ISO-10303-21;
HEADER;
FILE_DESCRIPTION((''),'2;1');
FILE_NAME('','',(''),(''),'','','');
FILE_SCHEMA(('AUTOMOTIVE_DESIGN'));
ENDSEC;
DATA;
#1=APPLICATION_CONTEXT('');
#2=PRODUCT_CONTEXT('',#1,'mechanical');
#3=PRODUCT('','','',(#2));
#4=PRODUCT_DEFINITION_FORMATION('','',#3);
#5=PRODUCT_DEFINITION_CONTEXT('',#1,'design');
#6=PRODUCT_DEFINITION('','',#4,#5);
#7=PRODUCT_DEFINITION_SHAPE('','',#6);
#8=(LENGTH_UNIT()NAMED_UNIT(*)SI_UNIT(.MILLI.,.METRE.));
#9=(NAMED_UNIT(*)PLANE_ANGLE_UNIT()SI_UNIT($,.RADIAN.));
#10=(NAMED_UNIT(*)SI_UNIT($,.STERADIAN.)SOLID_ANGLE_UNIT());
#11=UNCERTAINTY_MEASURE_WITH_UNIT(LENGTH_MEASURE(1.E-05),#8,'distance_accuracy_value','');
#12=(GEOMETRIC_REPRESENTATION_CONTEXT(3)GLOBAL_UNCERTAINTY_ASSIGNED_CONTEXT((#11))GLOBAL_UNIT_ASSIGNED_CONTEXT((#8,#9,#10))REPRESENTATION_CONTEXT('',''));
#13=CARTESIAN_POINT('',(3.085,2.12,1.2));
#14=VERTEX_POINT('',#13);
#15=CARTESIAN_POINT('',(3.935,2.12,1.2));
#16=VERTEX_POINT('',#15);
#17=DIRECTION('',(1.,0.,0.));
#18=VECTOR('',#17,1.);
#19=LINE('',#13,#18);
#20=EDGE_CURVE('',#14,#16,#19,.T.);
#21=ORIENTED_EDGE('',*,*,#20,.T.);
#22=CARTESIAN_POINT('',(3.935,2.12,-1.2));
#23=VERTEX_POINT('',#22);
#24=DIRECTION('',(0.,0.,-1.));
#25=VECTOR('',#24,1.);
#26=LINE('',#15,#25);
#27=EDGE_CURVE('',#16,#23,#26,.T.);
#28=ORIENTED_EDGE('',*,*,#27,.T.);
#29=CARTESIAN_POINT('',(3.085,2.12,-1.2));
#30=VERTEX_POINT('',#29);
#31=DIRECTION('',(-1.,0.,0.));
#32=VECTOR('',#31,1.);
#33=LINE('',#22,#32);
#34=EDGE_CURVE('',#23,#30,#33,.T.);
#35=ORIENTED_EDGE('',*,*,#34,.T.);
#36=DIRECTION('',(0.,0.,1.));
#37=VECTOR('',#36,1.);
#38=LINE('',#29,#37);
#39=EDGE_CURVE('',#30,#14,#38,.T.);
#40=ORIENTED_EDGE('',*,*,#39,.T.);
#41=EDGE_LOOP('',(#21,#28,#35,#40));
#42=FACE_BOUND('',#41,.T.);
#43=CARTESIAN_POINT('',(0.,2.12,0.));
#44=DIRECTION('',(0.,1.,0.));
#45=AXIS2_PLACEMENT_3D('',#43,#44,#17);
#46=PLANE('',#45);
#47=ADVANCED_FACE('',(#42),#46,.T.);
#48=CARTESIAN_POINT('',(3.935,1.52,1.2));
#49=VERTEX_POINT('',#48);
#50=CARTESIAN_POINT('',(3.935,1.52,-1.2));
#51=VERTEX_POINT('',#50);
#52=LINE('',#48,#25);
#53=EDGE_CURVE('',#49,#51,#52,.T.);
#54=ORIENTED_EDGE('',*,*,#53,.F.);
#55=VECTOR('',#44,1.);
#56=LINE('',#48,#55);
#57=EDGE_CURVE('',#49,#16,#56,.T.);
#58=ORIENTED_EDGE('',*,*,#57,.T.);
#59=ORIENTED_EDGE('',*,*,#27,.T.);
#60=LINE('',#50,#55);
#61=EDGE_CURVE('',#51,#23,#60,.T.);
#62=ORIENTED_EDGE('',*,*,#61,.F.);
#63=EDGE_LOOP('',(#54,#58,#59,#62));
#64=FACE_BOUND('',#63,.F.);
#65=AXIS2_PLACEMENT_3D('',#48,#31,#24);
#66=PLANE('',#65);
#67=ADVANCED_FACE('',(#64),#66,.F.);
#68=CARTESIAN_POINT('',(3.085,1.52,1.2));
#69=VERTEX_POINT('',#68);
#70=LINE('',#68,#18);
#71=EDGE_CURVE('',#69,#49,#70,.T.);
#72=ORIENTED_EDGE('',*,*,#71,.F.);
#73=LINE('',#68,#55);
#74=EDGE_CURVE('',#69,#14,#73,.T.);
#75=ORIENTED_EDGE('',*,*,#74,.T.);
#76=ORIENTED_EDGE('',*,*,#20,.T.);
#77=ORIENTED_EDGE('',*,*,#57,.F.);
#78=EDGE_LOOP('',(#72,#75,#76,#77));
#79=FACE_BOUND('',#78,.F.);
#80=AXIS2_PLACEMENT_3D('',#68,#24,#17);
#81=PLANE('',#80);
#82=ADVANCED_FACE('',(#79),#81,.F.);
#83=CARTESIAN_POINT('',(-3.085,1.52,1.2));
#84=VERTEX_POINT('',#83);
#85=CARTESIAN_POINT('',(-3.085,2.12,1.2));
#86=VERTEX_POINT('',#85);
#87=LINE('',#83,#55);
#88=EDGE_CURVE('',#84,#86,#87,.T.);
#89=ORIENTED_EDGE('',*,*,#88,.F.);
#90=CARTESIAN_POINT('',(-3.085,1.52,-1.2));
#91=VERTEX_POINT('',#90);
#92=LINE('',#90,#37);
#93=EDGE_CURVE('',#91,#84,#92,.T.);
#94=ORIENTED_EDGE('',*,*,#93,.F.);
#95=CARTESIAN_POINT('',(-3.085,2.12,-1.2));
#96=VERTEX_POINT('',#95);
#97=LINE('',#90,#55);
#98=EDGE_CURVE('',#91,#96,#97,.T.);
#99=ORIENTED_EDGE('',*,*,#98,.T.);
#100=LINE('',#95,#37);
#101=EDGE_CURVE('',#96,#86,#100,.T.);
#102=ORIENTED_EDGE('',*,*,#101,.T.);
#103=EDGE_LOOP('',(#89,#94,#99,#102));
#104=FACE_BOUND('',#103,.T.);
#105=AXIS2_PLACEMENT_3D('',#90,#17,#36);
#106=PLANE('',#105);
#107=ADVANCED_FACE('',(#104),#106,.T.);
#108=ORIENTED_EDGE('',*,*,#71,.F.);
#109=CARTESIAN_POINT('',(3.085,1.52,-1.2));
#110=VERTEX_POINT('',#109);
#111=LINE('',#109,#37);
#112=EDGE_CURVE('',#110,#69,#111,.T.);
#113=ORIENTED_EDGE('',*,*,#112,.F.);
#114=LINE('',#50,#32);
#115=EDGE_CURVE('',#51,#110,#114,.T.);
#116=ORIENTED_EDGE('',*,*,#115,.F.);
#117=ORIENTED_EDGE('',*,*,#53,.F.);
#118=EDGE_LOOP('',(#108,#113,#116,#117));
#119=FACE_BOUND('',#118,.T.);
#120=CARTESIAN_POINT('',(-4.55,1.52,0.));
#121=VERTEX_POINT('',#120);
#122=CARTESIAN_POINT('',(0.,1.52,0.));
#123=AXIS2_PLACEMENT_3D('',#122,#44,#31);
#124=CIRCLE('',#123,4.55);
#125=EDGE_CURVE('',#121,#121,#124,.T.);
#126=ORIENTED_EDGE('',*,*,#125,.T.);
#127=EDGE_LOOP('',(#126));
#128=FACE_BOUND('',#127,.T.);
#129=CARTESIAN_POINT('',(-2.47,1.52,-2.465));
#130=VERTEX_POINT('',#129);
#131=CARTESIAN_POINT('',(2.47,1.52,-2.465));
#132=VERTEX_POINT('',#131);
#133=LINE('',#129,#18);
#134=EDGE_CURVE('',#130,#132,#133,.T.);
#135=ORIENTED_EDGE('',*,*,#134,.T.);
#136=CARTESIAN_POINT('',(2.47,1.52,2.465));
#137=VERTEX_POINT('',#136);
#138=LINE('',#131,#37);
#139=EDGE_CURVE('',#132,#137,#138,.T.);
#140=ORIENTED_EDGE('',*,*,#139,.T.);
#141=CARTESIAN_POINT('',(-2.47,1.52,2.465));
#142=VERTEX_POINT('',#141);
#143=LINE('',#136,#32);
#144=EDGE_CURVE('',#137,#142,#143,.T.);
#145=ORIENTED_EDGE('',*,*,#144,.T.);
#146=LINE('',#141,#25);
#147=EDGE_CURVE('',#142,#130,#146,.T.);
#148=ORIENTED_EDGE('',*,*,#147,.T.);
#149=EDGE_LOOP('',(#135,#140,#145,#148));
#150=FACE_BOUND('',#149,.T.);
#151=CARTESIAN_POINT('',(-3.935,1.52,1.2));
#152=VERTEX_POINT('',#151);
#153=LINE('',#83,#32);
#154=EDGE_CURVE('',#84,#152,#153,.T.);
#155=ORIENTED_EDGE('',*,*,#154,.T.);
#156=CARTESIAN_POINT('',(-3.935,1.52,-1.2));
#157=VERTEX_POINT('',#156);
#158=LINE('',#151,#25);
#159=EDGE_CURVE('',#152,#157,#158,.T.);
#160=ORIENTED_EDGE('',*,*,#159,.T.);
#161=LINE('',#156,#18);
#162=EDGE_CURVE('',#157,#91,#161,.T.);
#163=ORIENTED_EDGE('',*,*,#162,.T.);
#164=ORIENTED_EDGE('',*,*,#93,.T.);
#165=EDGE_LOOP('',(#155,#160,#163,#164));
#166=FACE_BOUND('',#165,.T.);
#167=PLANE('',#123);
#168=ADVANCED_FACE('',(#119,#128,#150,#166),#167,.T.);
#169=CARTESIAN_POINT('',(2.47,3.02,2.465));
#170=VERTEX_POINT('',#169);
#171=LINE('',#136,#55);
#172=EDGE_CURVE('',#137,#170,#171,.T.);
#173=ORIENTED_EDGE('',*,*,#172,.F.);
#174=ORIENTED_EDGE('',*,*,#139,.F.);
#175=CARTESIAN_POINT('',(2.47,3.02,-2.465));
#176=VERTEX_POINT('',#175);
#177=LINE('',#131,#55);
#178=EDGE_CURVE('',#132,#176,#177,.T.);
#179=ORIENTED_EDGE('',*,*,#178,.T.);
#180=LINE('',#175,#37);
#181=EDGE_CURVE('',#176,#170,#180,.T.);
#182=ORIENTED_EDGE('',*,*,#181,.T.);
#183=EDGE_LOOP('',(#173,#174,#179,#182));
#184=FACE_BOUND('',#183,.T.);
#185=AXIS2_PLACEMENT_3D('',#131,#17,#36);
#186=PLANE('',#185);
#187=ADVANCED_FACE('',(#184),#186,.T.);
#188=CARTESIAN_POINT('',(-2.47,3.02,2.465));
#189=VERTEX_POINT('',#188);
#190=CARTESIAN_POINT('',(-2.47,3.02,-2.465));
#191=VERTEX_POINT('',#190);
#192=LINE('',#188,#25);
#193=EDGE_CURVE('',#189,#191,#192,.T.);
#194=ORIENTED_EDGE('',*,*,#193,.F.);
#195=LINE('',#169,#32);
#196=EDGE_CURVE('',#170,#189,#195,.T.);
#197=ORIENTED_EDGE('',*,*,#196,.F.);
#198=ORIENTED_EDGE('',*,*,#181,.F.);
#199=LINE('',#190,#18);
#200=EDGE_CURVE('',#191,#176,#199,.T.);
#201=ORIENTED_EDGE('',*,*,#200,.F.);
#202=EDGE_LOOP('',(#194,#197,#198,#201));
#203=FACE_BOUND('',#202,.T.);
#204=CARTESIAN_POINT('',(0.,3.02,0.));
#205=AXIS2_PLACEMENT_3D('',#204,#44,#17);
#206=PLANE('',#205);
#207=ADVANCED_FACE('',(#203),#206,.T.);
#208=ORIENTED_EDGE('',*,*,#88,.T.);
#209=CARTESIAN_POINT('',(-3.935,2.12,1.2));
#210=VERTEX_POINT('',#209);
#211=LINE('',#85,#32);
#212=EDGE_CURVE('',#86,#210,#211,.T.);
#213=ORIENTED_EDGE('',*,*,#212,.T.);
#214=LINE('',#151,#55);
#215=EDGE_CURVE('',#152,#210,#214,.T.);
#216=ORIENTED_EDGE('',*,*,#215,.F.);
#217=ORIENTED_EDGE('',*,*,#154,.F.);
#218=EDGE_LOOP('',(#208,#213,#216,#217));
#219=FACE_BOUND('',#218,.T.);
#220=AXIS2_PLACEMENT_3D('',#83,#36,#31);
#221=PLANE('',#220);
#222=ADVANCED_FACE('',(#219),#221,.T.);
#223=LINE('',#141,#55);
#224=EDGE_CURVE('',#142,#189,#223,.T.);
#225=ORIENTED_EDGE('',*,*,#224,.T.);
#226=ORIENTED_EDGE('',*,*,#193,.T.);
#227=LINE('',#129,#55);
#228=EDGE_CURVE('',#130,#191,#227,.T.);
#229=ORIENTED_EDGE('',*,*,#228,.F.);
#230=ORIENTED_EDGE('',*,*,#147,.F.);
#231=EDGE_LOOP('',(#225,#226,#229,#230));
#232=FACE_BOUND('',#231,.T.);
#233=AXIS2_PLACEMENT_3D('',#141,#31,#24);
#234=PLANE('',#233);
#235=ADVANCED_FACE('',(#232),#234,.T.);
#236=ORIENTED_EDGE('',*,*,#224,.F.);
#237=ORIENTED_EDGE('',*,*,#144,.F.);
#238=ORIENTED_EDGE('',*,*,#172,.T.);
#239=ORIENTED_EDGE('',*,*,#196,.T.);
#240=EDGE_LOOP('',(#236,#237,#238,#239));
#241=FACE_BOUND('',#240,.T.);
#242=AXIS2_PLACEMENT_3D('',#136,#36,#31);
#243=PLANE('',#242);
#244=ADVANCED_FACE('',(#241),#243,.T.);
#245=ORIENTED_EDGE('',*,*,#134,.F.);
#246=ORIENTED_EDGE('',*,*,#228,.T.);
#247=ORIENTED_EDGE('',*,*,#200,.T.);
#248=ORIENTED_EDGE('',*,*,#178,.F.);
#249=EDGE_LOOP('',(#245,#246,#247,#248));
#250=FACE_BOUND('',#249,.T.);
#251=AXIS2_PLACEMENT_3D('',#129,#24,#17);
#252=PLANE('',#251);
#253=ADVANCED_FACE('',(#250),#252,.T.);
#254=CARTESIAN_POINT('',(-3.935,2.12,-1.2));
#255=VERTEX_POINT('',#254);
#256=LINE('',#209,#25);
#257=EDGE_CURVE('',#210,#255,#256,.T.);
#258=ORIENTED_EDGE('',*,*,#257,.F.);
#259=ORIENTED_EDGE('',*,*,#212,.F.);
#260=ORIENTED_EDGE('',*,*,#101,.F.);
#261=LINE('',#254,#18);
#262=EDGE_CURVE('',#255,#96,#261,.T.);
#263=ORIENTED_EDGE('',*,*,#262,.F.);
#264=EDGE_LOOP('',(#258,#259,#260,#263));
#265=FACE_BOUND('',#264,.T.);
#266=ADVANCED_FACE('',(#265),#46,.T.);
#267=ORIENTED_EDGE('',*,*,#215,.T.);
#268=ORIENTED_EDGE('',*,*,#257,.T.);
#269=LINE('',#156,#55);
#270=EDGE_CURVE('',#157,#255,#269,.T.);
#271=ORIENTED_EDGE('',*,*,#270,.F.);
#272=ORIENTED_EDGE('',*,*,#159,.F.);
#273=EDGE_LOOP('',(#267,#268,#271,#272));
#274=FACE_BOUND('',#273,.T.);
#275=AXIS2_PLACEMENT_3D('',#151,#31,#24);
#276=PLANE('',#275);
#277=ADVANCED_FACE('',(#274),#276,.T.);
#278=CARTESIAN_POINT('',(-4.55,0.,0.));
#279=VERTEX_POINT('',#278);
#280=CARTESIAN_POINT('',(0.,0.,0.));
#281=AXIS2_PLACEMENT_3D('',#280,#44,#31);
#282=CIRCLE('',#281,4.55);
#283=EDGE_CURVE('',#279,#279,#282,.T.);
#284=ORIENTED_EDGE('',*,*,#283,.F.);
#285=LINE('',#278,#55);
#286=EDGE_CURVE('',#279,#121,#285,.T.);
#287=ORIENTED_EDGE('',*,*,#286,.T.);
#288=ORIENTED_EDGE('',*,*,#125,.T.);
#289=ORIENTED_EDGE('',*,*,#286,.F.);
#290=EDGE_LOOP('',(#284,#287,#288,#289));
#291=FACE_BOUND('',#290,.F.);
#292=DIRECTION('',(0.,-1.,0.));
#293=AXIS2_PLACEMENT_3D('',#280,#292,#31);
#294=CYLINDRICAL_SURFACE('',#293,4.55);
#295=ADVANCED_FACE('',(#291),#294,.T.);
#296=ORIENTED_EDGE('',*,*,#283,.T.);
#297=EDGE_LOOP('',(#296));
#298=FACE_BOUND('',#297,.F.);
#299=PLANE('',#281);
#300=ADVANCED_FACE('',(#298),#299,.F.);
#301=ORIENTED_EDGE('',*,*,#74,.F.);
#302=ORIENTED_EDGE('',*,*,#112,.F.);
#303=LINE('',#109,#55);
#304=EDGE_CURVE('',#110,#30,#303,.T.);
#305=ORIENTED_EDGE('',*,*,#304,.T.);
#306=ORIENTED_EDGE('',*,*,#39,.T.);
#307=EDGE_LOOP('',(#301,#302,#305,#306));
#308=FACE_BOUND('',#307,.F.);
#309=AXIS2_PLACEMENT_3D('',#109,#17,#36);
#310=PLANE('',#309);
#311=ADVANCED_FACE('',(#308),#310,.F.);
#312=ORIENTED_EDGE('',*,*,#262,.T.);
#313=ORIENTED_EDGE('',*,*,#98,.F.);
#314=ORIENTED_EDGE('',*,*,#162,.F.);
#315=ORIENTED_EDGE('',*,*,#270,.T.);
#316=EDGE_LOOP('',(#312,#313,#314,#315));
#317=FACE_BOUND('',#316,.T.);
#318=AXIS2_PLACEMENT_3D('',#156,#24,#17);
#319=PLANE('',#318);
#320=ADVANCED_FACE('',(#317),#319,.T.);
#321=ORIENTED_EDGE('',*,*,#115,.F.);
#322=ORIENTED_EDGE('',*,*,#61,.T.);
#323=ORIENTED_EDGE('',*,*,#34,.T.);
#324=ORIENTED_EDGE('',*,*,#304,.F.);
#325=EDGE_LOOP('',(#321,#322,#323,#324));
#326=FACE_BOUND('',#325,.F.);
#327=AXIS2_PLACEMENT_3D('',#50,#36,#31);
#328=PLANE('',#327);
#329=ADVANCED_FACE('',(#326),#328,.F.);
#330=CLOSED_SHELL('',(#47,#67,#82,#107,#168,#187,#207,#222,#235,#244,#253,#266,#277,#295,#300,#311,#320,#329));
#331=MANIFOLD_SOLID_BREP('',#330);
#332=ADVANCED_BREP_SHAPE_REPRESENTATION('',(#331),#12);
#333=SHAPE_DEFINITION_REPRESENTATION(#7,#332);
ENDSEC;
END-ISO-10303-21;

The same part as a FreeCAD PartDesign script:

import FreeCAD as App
import Part
import Sketcher

doc = App.newDocument("Part")
body = doc.addObject("PartDesign::Body", "Body")

# Sketch on XZ plane
sketch1 = body.newObject("Sketcher::SketchObject", "Sketch")
sketch1.AttachmentSupport = (doc.getObject("XZ_Plane"), [""])
sketch1.MapMode = "FlatFace"
sketch1.addGeometry(Part.Circle(App.Vector(0, 0, 0), App.Vector(0, 0, 1), 4.5), False)
sketch1.addConstraint(Sketcher.Constraint("Coincident", 0, 3, -1, 1))
sketch1.addConstraint(Sketcher.Constraint("Diameter", 0, 9.1))
pad1 = body.newObject("PartDesign::Pad", "Pad")
pad1.Profile = sketch1
pad1.Length = 1.52
pad1.Reversed = True

# Sketch on XZ plane
sketch2 = body.newObject("Sketcher::SketchObject", "Sketch001")
sketch2.AttachmentSupport = (doc.getObject("XZ_Plane"), [""])
sketch2.MapMode = "FlatFace"
sketch2.AttachmentOffset = App.Placement(App.Vector(0, 0, -1.52), App.Rotation())
sketch2.addGeometry(Part.LineSegment(App.Vector(-2.5, 2.5, 0), App.Vector(2.5, 2.5, 0)), False)
sketch2.addGeometry(Part.LineSegment(App.Vector(2.5, 2.5, 0), App.Vector(2.5, -2.5, 0)), False)
sketch2.addGeometry(Part.LineSegment(App.Vector(2.5, -2.5, 0), App.Vector(-2.5, -2.5, 0)), False)
sketch2.addGeometry(Part.LineSegment(App.Vector(-2.5, -2.5, 0), App.Vector(-2.5, 2.5, 0)), False)
sketch2.addConstraint(Sketcher.Constraint("Coincident", 0, 2, 1, 1))
sketch2.addConstraint(Sketcher.Constraint("Coincident", 1, 2, 2, 1))
sketch2.addConstraint(Sketcher.Constraint("Coincident", 2, 2, 3, 1))
sketch2.addConstraint(Sketcher.Constraint("Coincident", 3, 2, 0, 1))
sketch2.addConstraint(Sketcher.Constraint("Horizontal", 0))
sketch2.addConstraint(Sketcher.Constraint("Vertical", 1))
sketch2.addConstraint(Sketcher.Constraint("Horizontal", 2))
sketch2.addConstraint(Sketcher.Constraint("Vertical", 3))
sketch2.addConstraint(Sketcher.Constraint("Symmetric", 0, 2, 2, 2, -1, 1))
sketch2.addConstraint(Sketcher.Constraint("DistanceX", 0, 1, 0, 2, 4.94))
sketch2.addConstraint(Sketcher.Constraint("DistanceY", 1, 2, 1, 1, 4.93))
pad2 = body.newObject("PartDesign::Pad", "Pad001")
pad2.Profile = sketch2
pad2.Length = 1.5
pad2.Reversed = True

# Sketch on XZ plane
sketch3 = body.newObject("Sketcher::SketchObject", "Sketch002")
sketch3.AttachmentSupport = (doc.getObject("XZ_Plane"), [""])
sketch3.MapMode = "FlatFace"
sketch3.AttachmentOffset = App.Placement(App.Vector(0, 0, -1.52), App.Rotation())
sketch3.addGeometry(Part.LineSegment(App.Vector(3.9, 1.2, 0), App.Vector(3.9, -1.2, 0)), False)
sketch3.addGeometry(Part.LineSegment(App.Vector(3.9, -1.2, 0), App.Vector(3.1, -1.2, 0)), False)
sketch3.addGeometry(Part.LineSegment(App.Vector(3.1, -1.2, 0), App.Vector(3.1, 1.2, 0)), False)
sketch3.addGeometry(Part.LineSegment(App.Vector(3.1, 1.2, 0), App.Vector(3.9, 1.2, 0)), False)
sketch3.addGeometry(Part.LineSegment(App.Vector(-3.1, -1.2, 0), App.Vector(-3.9, -1.2, 0)), False)
sketch3.addGeometry(Part.LineSegment(App.Vector(-3.9, -1.2, 0), App.Vector(-3.9, 1.2, 0)), False)
sketch3.addGeometry(Part.LineSegment(App.Vector(-3.9, 1.2, 0), App.Vector(-3.1, 1.2, 0)), False)
sketch3.addGeometry(Part.LineSegment(App.Vector(-3.1, 1.2, 0), App.Vector(-3.1, -1.2, 0)), False)
sketch3.addConstraint(Sketcher.Constraint("Coincident", 0, 2, 1, 1))
sketch3.addConstraint(Sketcher.Constraint("Coincident", 1, 2, 2, 1))
sketch3.addConstraint(Sketcher.Constraint("Coincident", 2, 2, 3, 1))
sketch3.addConstraint(Sketcher.Constraint("Coincident", 3, 2, 0, 1))
sketch3.addConstraint(Sketcher.Constraint("Coincident", 4, 2, 5, 1))
sketch3.addConstraint(Sketcher.Constraint("Coincident", 5, 2, 6, 1))
sketch3.addConstraint(Sketcher.Constraint("Coincident", 6, 2, 7, 1))
sketch3.addConstraint(Sketcher.Constraint("Coincident", 7, 2, 4, 1))
sketch3.addConstraint(Sketcher.Constraint("Vertical", 0))
sketch3.addConstraint(Sketcher.Constraint("Horizontal", 1))
sketch3.addConstraint(Sketcher.Constraint("Vertical", 2))
sketch3.addConstraint(Sketcher.Constraint("Horizontal", 3))
sketch3.addConstraint(Sketcher.Constraint("Horizontal", 4))
sketch3.addConstraint(Sketcher.Constraint("Vertical", 5))
sketch3.addConstraint(Sketcher.Constraint("Horizontal", 6))
sketch3.addConstraint(Sketcher.Constraint("Vertical", 7))
sketch3.addConstraint(Sketcher.Constraint("Symmetric", 3, 2, 4, 2, -1, 1))
sketch3.addConstraint(Sketcher.Constraint("Symmetric", 1, 2, 6, 2, -1, 1))
sketch3.addConstraint(Sketcher.Constraint("Horizontal", 1, 2, 4, 2))
sketch3.addConstraint(Sketcher.Constraint("DistanceY", 0, 2, 0, 1, 2.4))
sketch3.addConstraint(Sketcher.Constraint("DistanceX", 1, 2, 1, 1, 0.85))
sketch3.addConstraint(Sketcher.Constraint("DistanceX", 4, 2, 1, 2, 7.02))
pad3 = body.newObject("PartDesign::Pad", "Pad002")
pad3.Profile = sketch3
pad3.Length = 0.6
pad3.Reversed = True

doc.recompute()
